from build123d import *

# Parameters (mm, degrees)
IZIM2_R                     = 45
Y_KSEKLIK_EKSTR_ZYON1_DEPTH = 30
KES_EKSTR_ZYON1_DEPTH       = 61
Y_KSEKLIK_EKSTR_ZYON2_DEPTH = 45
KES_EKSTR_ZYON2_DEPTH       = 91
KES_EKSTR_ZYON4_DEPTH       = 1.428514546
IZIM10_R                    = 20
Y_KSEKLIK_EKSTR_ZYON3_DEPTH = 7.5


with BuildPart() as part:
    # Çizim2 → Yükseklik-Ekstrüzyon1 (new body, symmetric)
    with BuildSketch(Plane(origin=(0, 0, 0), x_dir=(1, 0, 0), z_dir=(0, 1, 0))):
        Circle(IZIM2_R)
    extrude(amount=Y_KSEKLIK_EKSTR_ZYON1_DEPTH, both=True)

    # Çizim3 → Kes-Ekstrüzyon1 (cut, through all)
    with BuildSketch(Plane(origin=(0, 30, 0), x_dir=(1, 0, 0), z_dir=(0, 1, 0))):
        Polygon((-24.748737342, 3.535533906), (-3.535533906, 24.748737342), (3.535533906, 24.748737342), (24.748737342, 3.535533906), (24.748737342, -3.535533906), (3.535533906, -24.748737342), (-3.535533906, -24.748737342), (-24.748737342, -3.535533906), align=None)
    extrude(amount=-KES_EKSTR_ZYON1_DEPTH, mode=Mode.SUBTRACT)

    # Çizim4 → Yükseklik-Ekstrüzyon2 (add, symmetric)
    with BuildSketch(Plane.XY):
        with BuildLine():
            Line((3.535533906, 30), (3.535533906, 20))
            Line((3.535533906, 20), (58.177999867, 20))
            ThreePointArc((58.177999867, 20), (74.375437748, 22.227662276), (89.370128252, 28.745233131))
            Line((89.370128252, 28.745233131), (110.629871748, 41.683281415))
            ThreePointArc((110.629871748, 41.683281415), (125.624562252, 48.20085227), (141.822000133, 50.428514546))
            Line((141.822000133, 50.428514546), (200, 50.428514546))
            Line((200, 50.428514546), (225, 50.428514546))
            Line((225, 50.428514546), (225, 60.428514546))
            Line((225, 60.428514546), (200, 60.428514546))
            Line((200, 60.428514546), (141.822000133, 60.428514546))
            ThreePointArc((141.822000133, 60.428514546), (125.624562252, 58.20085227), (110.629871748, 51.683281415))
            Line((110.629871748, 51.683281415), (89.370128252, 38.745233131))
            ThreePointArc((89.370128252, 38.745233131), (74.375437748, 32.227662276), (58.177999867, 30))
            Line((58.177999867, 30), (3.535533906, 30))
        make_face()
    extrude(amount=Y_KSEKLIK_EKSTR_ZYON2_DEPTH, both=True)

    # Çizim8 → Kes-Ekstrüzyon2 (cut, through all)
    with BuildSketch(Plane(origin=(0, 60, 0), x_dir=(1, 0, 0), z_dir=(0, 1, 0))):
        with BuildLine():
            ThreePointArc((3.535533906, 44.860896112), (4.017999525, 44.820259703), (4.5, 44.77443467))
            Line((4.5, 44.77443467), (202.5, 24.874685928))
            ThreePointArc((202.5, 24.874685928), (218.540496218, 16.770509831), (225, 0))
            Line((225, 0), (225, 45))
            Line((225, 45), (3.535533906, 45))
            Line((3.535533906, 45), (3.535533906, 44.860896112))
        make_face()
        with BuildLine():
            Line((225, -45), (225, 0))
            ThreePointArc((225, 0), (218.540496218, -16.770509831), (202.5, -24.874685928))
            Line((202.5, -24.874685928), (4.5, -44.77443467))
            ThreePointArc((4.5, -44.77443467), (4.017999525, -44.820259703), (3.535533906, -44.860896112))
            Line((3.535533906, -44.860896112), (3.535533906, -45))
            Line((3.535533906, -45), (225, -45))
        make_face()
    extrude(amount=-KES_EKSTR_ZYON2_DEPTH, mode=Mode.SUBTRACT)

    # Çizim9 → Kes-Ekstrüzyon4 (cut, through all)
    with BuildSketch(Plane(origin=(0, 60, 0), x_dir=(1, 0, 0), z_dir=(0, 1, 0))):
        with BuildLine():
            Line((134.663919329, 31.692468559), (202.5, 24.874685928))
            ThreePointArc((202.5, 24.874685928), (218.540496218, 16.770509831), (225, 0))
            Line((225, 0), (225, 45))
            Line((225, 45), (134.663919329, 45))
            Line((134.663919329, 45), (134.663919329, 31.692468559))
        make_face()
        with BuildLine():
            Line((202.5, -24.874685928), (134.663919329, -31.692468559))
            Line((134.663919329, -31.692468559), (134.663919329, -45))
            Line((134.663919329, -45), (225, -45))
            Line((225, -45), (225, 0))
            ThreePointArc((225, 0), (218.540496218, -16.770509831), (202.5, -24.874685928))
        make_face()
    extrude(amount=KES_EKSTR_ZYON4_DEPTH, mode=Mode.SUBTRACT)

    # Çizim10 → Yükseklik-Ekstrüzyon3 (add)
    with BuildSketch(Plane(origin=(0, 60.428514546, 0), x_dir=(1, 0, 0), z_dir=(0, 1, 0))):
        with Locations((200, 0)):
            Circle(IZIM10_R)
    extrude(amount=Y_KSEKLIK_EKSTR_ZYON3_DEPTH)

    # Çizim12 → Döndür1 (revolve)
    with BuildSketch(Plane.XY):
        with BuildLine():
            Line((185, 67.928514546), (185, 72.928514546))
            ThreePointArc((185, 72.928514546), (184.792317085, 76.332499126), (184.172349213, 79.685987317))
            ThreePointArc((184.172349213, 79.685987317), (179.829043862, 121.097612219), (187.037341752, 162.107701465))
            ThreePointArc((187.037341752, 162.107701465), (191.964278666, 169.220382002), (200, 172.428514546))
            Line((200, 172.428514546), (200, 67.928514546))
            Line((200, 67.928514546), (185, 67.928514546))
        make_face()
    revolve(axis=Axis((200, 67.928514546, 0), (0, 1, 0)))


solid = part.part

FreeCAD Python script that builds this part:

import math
import FreeCAD as App
import Part
import Sketcher


def add_polygon(sketch, points):
    """Adds a closed chain of lines whose ends are joined by coincident constraints."""
    first, n = sketch.GeometryCount, len(points)
    for a, b in zip(points, points[1:] + points[:1]):
        sketch.addGeometry(Part.LineSegment(App.Vector(*a, 0), App.Vector(*b, 0)), False)
    for i in range(n):
        sketch.addConstraint(Sketcher.Constraint("Coincident", first + i, 2, first + (i + 1) % n, 1))

doc = App.newDocument("Part")
body = doc.addObject("PartDesign::Body", "Body")

sketch1 = doc.addObject("Sketcher::SketchObject", "Sketch")
body.addObject(sketch1)
sketch1.AttachmentSupport = (doc.XZ_Plane, [""])
sketch1.MapMode = "FlatFace"
sketch1.addGeometry(Part.Circle(App.Vector(0, 0, 0), App.Vector(0, 0, 1), 45), False)
sketch1.addConstraint(Sketcher.Constraint("Coincident", 0, 3, -1, 1))
sketch1.addConstraint(Sketcher.Constraint("Diameter", 0, 90.0))
pad1 = doc.addObject("PartDesign::Pad", "Pad")
body.addObject(pad1)
pad1.Profile = sketch1
pad1.Length = 60
pad1.Midplane = True

sketch2 = doc.addObject("Sketcher::SketchObject", "Sketch001")
body.addObject(sketch2)
sketch2.AttachmentSupport = (doc.XZ_Plane, [""])
sketch2.MapMode = "FlatFace"
sketch2.AttachmentOffset = App.Placement(App.Vector(0, 0, -30), App.Rotation())
add_polygon(sketch2, [(-4, -25), (-25, -4), (-25, 4), (-4, 25), (4, 25), (25, 4), (25, -4), (4, -25)])
sketch2.addConstraint(Sketcher.Constraint("Vertical", 1))
sketch2.addConstraint(Sketcher.Constraint("Horizontal", 3))
sketch2.addConstraint(Sketcher.Constraint("Vertical", 5))
sketch2.addConstraint(Sketcher.Constraint("Horizontal", 7))
sketch2.addConstraint(Sketcher.Constraint("Symmetric", 0, 2, 4, 2, -1, 1))
sketch2.addConstraint(Sketcher.Constraint("Symmetric", 2, 2, 6, 2, -1, 1))
sketch2.addConstraint(Sketcher.Constraint("Perpendicular", 0, 2))
sketch2.addConstraint(Sketcher.Constraint("Perpendicular", 2, 4))
sketch2.addConstraint(Sketcher.Constraint("Perpendicular", 4, 6))
sketch2.addConstraint(Sketcher.Constraint("Horizontal", 1, 2, 4, 2))
sketch2.addConstraint(Sketcher.Constraint("Vertical", 3, 2, 6, 2))
sketch2.addConstraint(Sketcher.Constraint("Equal", 7, 1))
sketch2.addConstraint(Sketcher.Constraint("Distance", 0, 30.0))
sketch2.addConstraint(Sketcher.Constraint("DistanceX", 3, 1, 3, 2, 7.071068))
pocket1 = doc.addObject("PartDesign::Pocket", "Pocket")
body.addObject(pocket1)
pocket1.Profile = sketch2
pocket1.Type = "ThroughAll"
pocket1.Reversed = True

sketch3 = doc.addObject("Sketcher::SketchObject", "Sketch002")
body.addObject(sketch3)
sketch3.AttachmentSupport = (doc.XY_Plane, [""])
sketch3.MapMode = "FlatFace"
sketch3.addGeometry(Part.LineSegment(App.Vector(4, 30, 0), App.Vector(4, 20, 0)), False)
sketch3.addGeometry(Part.LineSegment(App.Vector(4, 20, 0), App.Vector(58, 20, 0)), False)
sketch3.addGeometry(Part.ArcOfCircle(Part.Circle(App.Vector(58, 80, 0), App.Vector(0, 0, 1), 60), math.radians(-90), math.radians(-59)), False)
sketch3.addGeometry(Part.LineSegment(App.Vector(89, 29, 0), App.Vector(111, 42, 0)), False)
sketch3.addGeometry(Part.ArcOfCircle(Part.Circle(App.Vector(142, -10, 0), App.Vector(0, 0, 1), 60), math.radians(90), math.radians(121)), False)
sketch3.addGeometry(Part.LineSegment(App.Vector(142, 50, 0), App.Vector(225, 50, 0)), False)
sketch3.addGeometry(Part.LineSegment(App.Vector(225, 50, 0), App.Vector(225, 60, 0)), False)
sketch3.addGeometry(Part.LineSegment(App.Vector(225, 60, 0), App.Vector(142, 60, 0)), False)
sketch3.addGeometry(Part.ArcOfCircle(Part.Circle(App.Vector(142, 0, 0), App.Vector(0, 0, 1), 60), math.radians(90), math.radians(121)), False)
sketch3.addGeometry(Part.LineSegment(App.Vector(111, 52, 0), App.Vector(89, 39, 0)), False)
sketch3.addGeometry(Part.ArcOfCircle(Part.Circle(App.Vector(58, 90, 0), App.Vector(0, 0, 1), 60), math.radians(-90), math.radians(-59)), False)
sketch3.addGeometry(Part.LineSegment(App.Vector(58, 30, 0), App.Vector(4, 30, 0)), False)
sketch3.addConstraint(Sketcher.Constraint("Coincident", 0, 2, 1, 1))
sketch3.addConstraint(Sketcher.Constraint("Tangent", 1, 2, 2, 1))
sketch3.addConstraint(Sketcher.Constraint("Tangent", 2, 2, 3, 1))
sketch3.addConstraint(Sketcher.Constraint("Tangent", 3, 2, 4, 2))
sketch3.addConstraint(Sketcher.Constraint("Tangent", 4, 1, 5, 1))
sketch3.addConstraint(Sketcher.Constraint("Coincident", 5, 2, 6, 1))
sketch3.addConstraint(Sketcher.Constraint("Coincident", 6, 2, 7, 1))
sketch3.addConstraint(Sketcher.Constraint("Tangent", 7, 2, 8, 1))
sketch3.addConstraint(Sketcher.Constraint("Tangent", 8, 2, 9, 1))
sketch3.addConstraint(Sketcher.Constraint("Tangent", 9, 2, 10, 2))
sketch3.addConstraint(Sketcher.Constraint("Tangent", 10, 1, 11, 1))
sketch3.addConstraint(Sketcher.Constraint("Coincident", 11, 2, 0, 1))
sketch3.addConstraint(Sketcher.Constraint("Vertical", 0))
sketch3.addConstraint(Sketcher.Constraint("Horizontal", 1))
sketch3.addConstraint(Sketcher.Constraint("Horizontal", 5))
sketch3.addConstraint(Sketcher.Constraint("Vertical", 6))
sketch3.addConstraint(Sketcher.Constraint("Horizontal", 7))
sketch3.addConstraint(Sketcher.Constraint("Horizontal", 11))
sketch3.addConstraint(Sketcher.Constraint("Equal", 2, 4))
sketch3.addConstraint(Sketcher.Constraint("Equal", 4, 8))
sketch3.addConstraint(Sketcher.Constraint("Equal", 8, 10))
sketch3.addConstraint(Sketcher.Constraint("Parallel", 3, 9))
sketch3.addConstraint(Sketcher.Constraint("Vertical", 4, 3, 8, 3))
sketch3.addConstraint(Sketcher.Constraint("Vertical", 2, 3, 10, 3))
sketch3.addConstraint(Sketcher.Constraint("Radius", 2, 60.0))
sketch3.addConstraint(Sketcher.Constraint("DistanceY", 0, 2, 0, 1, 10.0))
sketch3.addConstraint(Sketcher.Constraint("DistanceY", -1, 1, 2, 3, 80.0))
sketch3.addConstraint(Sketcher.Constraint("DistanceX", -1, 1, 5, 2, 225.0))
sketch3.addConstraint(Sketcher.Constraint("DistanceX", 5, 1, 5, 2, 83.178))
sketch3.addConstraint(Sketcher.Constraint("DistanceX", -1, 1, 2, 3, 58.178))
sketch3.addConstraint(Sketcher.Constraint("Distance", 3, 24.887141))
sketch3.addConstraint(Sketcher.Constraint("DistanceX", 1, 1, 1, 2, 54.642466))
pad2 = doc.addObject("PartDesign::Pad", "Pad001")
body.addObject(pad2)
pad2.Profile = sketch3
pad2.Length = 90
pad2.Midplane = True

sketch4 = doc.addObject("Sketcher::SketchObject", "Sketch003")
body.addObject(sketch4)
sketch4.AttachmentSupport = (doc.XZ_Plane, [""])
sketch4.MapMode = "FlatFace"
sketch4.AttachmentOffset = App.Placement(App.Vector(0, 0, -60), App.Rotation())
sketch4.addGeometry(Part.ArcOfCircle(Part.Circle(App.Vector(0, 0, 0), App.Vector(0, 0, 1), 45), math.radians(-85.49), math.radians(-84.26)), False)
sketch4.addGeometry(Part.LineSegment(App.Vector(4.5, -44.77, 0), App.Vector(202.5, -24.87, 0)), False)
sketch4.addGeometry(Part.ArcOfCircle(Part.Circle(App.Vector(200, 0, 0), App.Vector(0, 0, 1), 25), math.radians(-84), math.radians(0)), False)
sketch4.addGeometry(Part.LineSegment(App.Vector(225, 0, 0), App.Vector(225, -45, 0)), False)
sketch4.addGeometry(Part.LineSegment(App.Vector(225, -45, 0), App.Vector(3.54, -45, 0)), False)
sketch4.addGeometry(Part.LineSegment(App.Vector(3.54, -45, 0), App.Vector(3.54, -44.86, 0)), False)
sketch4.addGeometry(Part.LineSegment(App.Vector(225, 45, 0), App.Vector(225, 0, 0)), False)
sketch4.addGeometry(Part.ArcOfCircle(Part.Circle(App.Vector(200, 0, 0), App.Vector(0, 0, 1), 25), math.radians(0), math.radians(84)), False)
sketch4.addGeometry(Part.LineSegment(App.Vector(202.5, 24.87, 0), App.Vector(4.5, 44.77, 0)), False)
sketch4.addGeometry(Part.ArcOfCircle(Part.Circle(App.Vector(0, 0, 0), App.Vector(0, 0, 1), 45), math.radians(84.26), math.radians(85.49)), False)
sketch4.addGeometry(Part.LineSegment(App.Vector(3.54, 44.86, 0), App.Vector(3.54, 45, 0)), False)
sketch4.addGeometry(Part.LineSegment(App.Vector(3.54, 45, 0), App.Vector(225, 45, 0)), False)
sketch4.addConstraint(Sketcher.Constraint("Tangent", 0, 2, 1, 1))
sketch4.addConstraint(Sketcher.Constraint("Tangent", 1, 2, 2, 1))
sketch4.addConstraint(Sketcher.Constraint("Tangent", 2, 2, 3, 1))
sketch4.addConstraint(Sketcher.Constraint("Coincident", 3, 2, 4, 1))
sketch4.addConstraint(Sketcher.Constraint("Coincident", 4, 2, 5, 1))
sketch4.addConstraint(Sketcher.Constraint("Coincident", 5, 2, 0, 1))
sketch4.addConstraint(Sketcher.Constraint("Tangent", 6, 2, 7, 1))
sketch4.addConstraint(Sketcher.Constraint("Tangent", 7, 2, 8, 1))
sketch4.addConstraint(Sketcher.Constraint("Tangent", 8, 2, 9, 1))
sketch4.addConstraint(Sketcher.Constraint("Coincident", 9, 2, 10, 1))
sketch4.addConstraint(Sketcher.Constraint("Coincident", 10, 2, 11, 1))
sketch4.addConstraint(Sketcher.Constraint("Coincident", 11, 2, 6, 1))
sketch4.addConstraint(Sketcher.Constraint("Vertical", 3))
sketch4.addConstraint(Sketcher.Constraint("Horizontal", 4))
sketch4.addConstraint(Sketcher.Constraint("Vertical", 5))
sketch4.addConstraint(Sketcher.Constraint("Vertical", 6))
sketch4.addConstraint(Sketcher.Constraint("Vertical", 10))
sketch4.addConstraint(Sketcher.Constraint("Horizontal", 11))
sketch4.addConstraint(Sketcher.Constraint("Coincident", 0, 3, -1, 1))
sketch4.addConstraint(Sketcher.Constraint("Coincident", 9, 3, -1, 1))
sketch4.addConstraint(Sketcher.Constraint("Coincident", 7, 3, 2, 3))
sketch4.addConstraint(Sketcher.Constraint("Equal", 2, 7))
sketch4.addConstraint(Sketcher.Constraint("Equal", 0, 9))
sketch4.addConstraint(Sketcher.Constraint("Symmetric", 4, 2, 10, 2, -1))
sketch4.addConstraint(Sketcher.Constraint("PointOnObject", 2, 3, -1))
sketch4.addConstraint(Sketcher.Constraint("Radius", 2, 25.0))
sketch4.addConstraint(Sketcher.Constraint("DistanceY", 3, 2, 3, 1, 45.0))
sketch4.addConstraint(Sketcher.Constraint("DistanceX", -1, 1, 2, 3, 200.0))
sketch4.addConstraint(Sketcher.Constraint("DistanceX", -1, 1, 0, 2, 4.5))
sketch4.addConstraint(Sketcher.Constraint("DistanceX", 4, 2, 4, 1, 221.464466))
pocket2 = doc.addObject("PartDesign::Pocket", "Pocket001")
body.addObject(pocket2)
pocket2.Profile = sketch4
pocket2.Type = "ThroughAll"
pocket2.Reversed = True

sketch5 = doc.addObject("Sketcher::SketchObject", "Sketch004")
body.addObject(sketch5)
sketch5.AttachmentSupport = (doc.XZ_Plane, [""])
sketch5.MapMode = "FlatFace"
sketch5.AttachmentOffset = App.Placement(App.Vector(0, 0, -60), App.Rotation())
sketch5.addGeometry(Part.LineSegment(App.Vector(135, -32, 0), App.Vector(202, -25, 0)), False)
sketch5.addGeometry(Part.ArcOfCircle(Part.Circle(App.Vector(200, 0, 0), App.Vector(0, 0, 1), 25), math.radians(-84), math.radians(0)), False)
sketch5.addGeometry(Part.LineSegment(App.Vector(225, 0, 0), App.Vector(225, -45, 0)), False)
sketch5.addGeometry(Part.LineSegment(App.Vector(225, -45, 0), App.Vector(135, -45, 0)), False)
sketch5.addGeometry(Part.LineSegment(App.Vector(135, -45, 0), App.Vector(135, -32, 0)), False)
sketch5.addGeometry(Part.LineSegment(App.Vector(202, 25, 0), App.Vector(135, 32, 0)), False)
sketch5.addGeometry(Part.LineSegment(App.Vector(135, 32, 0), App.Vector(135, 45, 0)), False)
sketch5.addGeometry(Part.LineSegment(App.Vector(135, 45, 0), App.Vector(225, 45, 0)), False)
sketch5.addGeometry(Part.LineSegment(App.Vector(225, 45, 0), App.Vector(225, 0, 0)), False)
sketch5.addGeometry(Part.ArcOfCircle(Part.Circle(App.Vector(200, 0, 0), App.Vector(0, 0, 1), 25), math.radians(0), math.radians(84)), False)
sketch5.addConstraint(Sketcher.Constraint("Tangent", 0, 2, 1, 1))
sketch5.addConstraint(Sketcher.Constraint("Tangent", 1, 2, 2, 1))
sketch5.addConstraint(Sketcher.Constraint("Coincident", 2, 2, 3, 1))
sketch5.addConstraint(Sketcher.Constraint("Coincident", 3, 2, 4, 1))
sketch5.addConstraint(Sketcher.Constraint("Coincident", 4, 2, 0, 1))
sketch5.addConstraint(Sketcher.Constraint("Coincident", 5, 2, 6, 1))
sketch5.addConstraint(Sketcher.Constraint("Coincident", 6, 2, 7, 1))
sketch5.addConstraint(Sketcher.Constraint("Coincident", 7, 2, 8, 1))
sketch5.addConstraint(Sketcher.Constraint("Tangent", 8, 2, 9, 1))
sketch5.addConstraint(Sketcher.Constraint("Tangent", 9, 2, 5, 1))
sketch5.addConstraint(Sketcher.Constraint("Vertical", 2))
sketch5.addConstraint(Sketcher.Constraint("Horizontal", 3))
sketch5.addConstraint(Sketcher.Constraint("Vertical", 4))
sketch5.addConstraint(Sketcher.Constraint("Vertical", 6))
sketch5.addConstraint(Sketcher.Constraint("Horizontal", 7))
sketch5.addConstraint(Sketcher.Constraint("Vertical", 8))
sketch5.addConstraint(Sketcher.Constraint("Coincident", 9, 3, 1, 3))
sketch5.addConstraint(Sketcher.Constraint("Equal", 1, 9))
sketch5.addConstraint(Sketcher.Constraint("Symmetric", 4, 2, 5, 2, -1))
sketch5.addConstraint(Sketcher.Constraint("PointOnObject", 1, 3, -1))
sketch5.addConstraint(Sketcher.Constraint("Equal", 4, 6))
sketch5.addConstraint(Sketcher.Constraint("Radius", 1, 25.0))
sketch5.addConstraint(Sketcher.Constraint("DistanceY", 2, 2, 2, 1, 45.0))
sketch5.addConstraint(Sketcher.Constraint("DistanceX", -1, 1, 1, 3, 200.0))
sketch5.addConstraint(Sketcher.Constraint("DistanceX", -1, 1, 0, 2, 202.5))
sketch5.addConstraint(Sketcher.Constraint("DistanceX", 3, 2, 3, 1, 90.336081))
pocket3 = doc.addObject("PartDesign::Pocket", "Pocket002")
body.addObject(pocket3)
pocket3.Profile = sketch5
pocket3.Type = "ThroughAll"

sketch6 = doc.addObject("Sketcher::SketchObject", "Sketch005")
body.addObject(sketch6)
sketch6.AttachmentSupport = (doc.XZ_Plane, [""])
sketch6.MapMode = "FlatFace"
sketch6.AttachmentOffset = App.Placement(App.Vector(0, 0, -60.428515), App.Rotation())
sketch6.addGeometry(Part.Circle(App.Vector(200, 0, 0), App.Vector(0, 0, 1), 20), False)
sketch6.addConstraint(Sketcher.Constraint("PointOnObject", 0, 3, -1))
sketch6.addConstraint(Sketcher.Constraint("Diameter", 0, 40.0))
sketch6.addConstraint(Sketcher.Constraint("DistanceX", -1, 1, 0, 3, 200.0))
pad3 = doc.addObject("PartDesign::Pad", "Pad002")
body.addObject(pad3)
pad3.Profile = sketch6
pad3.Length = 7.5
pad3.Reversed = True

sketch7 = doc.addObject("Sketcher::SketchObject", "Sketch006")
body.addObject(sketch7)
sketch7.AttachmentSupport = (doc.XY_Plane, [""])
sketch7.MapMode = "FlatFace"
sketch7.addGeometry(Part.LineSegment(App.Vector(185, 73, 0), App.Vector(185, 68, 0)), False)
sketch7.addGeometry(Part.LineSegment(App.Vector(185, 68, 0), App.Vector(200, 68, 0)), False)
sketch7.addGeometry(Part.LineSegment(App.Vector(200, 68, 0), App.Vector(200, 172, 0)), False)
sketch7.addGeometry(Part.ArcOfCircle(Part.Circle(App.Vector(201, 157, 0), App.Vector(0, 0, 1), 15), math.radians(95), math.radians(162)), False)
sketch7.addGeometry(Part.ArcOfCircle(Part.Circle(App.Vector(330, 116, 0), App.Vector(0, 0, 1), 150), math.radians(162), math.radians(194)), False)
sketch7.addGeometry(Part.ArcOfCircle(Part.Circle(App.Vector(157, 73, 0), App.Vector(0, 0, 1), 28), math.radians(0), math.radians(13.97)), False)
sketch7.addGeometry(Part.LineSegment(App.Vector(200, 68, 0), App.Vector(200, 172, 0)), True)
sketch7.addConstraint(Sketcher.Constraint("Coincident", 0, 2, 1, 1))
sketch7.addConstraint(Sketcher.Constraint("Coincident", 1, 2, 2, 1))
sketch7.addConstraint(Sketcher.Constraint("Coincident", 2, 2, 3, 1))
sketch7.addConstraint(Sketcher.Constraint("Tangent", 3, 2, 4, 1))
sketch7.addConstraint(Sketcher.Constraint("Tangent", 4, 2, 5, 2))
sketch7.addConstraint(Sketcher.Constraint("Tangent", 5, 1, 0, 1))
sketch7.addConstraint(Sketcher.Constraint("Vertical", 0))
sketch7.addConstraint(Sketcher.Constraint("Horizontal", 1))
sketch7.addConstraint(Sketcher.Constraint("Vertical", 2))
sketch7.addConstraint(Sketcher.Constraint("Vertical", 6))
sketch7.addConstraint(Sketcher.Constraint("Coincident", 6, 1, 1, 2))
sketch7.addConstraint(Sketcher.Constraint("Equal", 2, 6))
sketch7.addConstraint(Sketcher.Constraint("Radius", 3, 15.0))
sketch7.addConstraint(Sketcher.Constraint("Radius", 4, 150.0))
sketch7.addConstraint(Sketcher.Constraint("Radius", 5, 28.0))
sketch7.addConstraint(Sketcher.Constraint("DistanceX", 1, 1, 1, 2, 15.0))
sketch7.addConstraint(Sketcher.Constraint("DistanceY", 0, 2, 0, 1, 5.0))
sketch7.addConstraint(Sketcher.Constraint("DistanceY", 2, 1, 2, 2, 104.5))
sketch7.addConstraint(Sketcher.Constraint("DistanceX", -1, 1, 5, 3, 157.0))
sketch7.addConstraint(Sketcher.Constraint("DistanceY", -1, 1, 3, 2, 162.107701))
sketch7.addConstraint(Sketcher.Constraint("DistanceX", -1, 1, 3, 3, 201.307458))
revolution = doc.addObject("PartDesign::Revolution", "Revolution")
body.addObject(revolution)
revolution.Profile = sketch7
revolution.ReferenceAxis = (sketch7, ["Axis0"])
revolution.Angle = 360

doc.recompute()
